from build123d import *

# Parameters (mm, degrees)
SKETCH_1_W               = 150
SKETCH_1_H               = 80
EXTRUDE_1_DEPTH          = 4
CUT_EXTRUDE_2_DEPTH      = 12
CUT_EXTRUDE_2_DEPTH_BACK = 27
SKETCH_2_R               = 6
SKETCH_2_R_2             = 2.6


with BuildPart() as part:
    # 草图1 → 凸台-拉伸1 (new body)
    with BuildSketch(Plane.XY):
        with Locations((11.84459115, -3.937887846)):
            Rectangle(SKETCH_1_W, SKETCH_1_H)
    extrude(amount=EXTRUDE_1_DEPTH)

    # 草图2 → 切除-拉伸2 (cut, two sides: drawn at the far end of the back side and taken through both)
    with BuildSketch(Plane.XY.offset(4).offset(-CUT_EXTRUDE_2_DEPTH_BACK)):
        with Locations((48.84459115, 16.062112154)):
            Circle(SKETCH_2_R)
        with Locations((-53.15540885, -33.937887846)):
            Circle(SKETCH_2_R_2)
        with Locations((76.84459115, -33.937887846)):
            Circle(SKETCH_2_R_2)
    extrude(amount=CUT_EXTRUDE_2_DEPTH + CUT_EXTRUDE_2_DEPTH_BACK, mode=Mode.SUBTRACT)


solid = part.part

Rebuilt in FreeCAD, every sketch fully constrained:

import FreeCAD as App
import Part
import Sketcher
from FreeCAD import Vector
Q = App.Units.Quantity

doc = App.newDocument("Part")
body = doc.addObject("PartDesign::Body", "Body")

# Sketch on XY plane
sketch1 = doc.addObject("Sketcher::SketchObject", "Sketch")
body.addObject(sketch1)
sketch1.AttachmentSupport = (doc.XY_Plane, [""])
sketch1.MapMode = "FlatFace"
sketch1.addGeometry([
    Part.LineSegment(Vector(-63, 36, 0), Vector(-63, -44, 0)),
    Part.LineSegment(Vector(-63, -44, 0), Vector(87, -44, 0)),
    Part.LineSegment(Vector(87, -44, 0), Vector(87, 36, 0)),
    Part.LineSegment(Vector(87, 36, 0), Vector(-63, 36, 0)),
], False)
sketch1.addConstraint([
    Sketcher.Constraint("Coincident", 0, 2, 1, 1),
    Sketcher.Constraint("Coincident", 1, 2, 2, 1),
    Sketcher.Constraint("Coincident", 2, 2, 3, 1),
    Sketcher.Constraint("Coincident", 3, 2, 0, 1),
    Sketcher.Constraint("Vertical", 0),
    Sketcher.Constraint("Horizontal", 1),
    Sketcher.Constraint("Vertical", 2),
    Sketcher.Constraint("Horizontal", 3),
    Sketcher.Constraint("DistanceX", 1, 1, 1, 2, Q("150 mm")),
    Sketcher.Constraint("DistanceY", 0, 2, 0, 1, Q("80 mm")),
    Sketcher.Constraint("DistanceX", 0, 2, -1, 1, Q("63.155409 mm")),
    Sketcher.Constraint("DistanceY", 0, 2, -1, 1, Q("43.937888 mm")),
])
pad1 = doc.addObject("PartDesign::Pad", "Pad")
body.addObject(pad1)
pad1.Profile = sketch1
pad1.Length = 4

# Sketch on XY plane
sketch2 = doc.addObject("Sketcher::SketchObject", "Sketch001")
body.addObject(sketch2)
sketch2.AttachmentSupport = (doc.XY_Plane, [""])
sketch2.MapMode = "FlatFace"
sketch2.AttachmentOffset = App.Placement(Vector(0, 0, 4), App.Rotation())
sketch2.addGeometry([
    Part.Circle(Vector(48.8, 16.1, 0), Vector(0, 0, 1), 6),
    Part.Circle(Vector(-53.2, -33.9, 0), Vector(0, 0, 1), 2.6),
    Part.Circle(Vector(76.8, -33.9, 0), Vector(0, 0, 1), 2.6),
], False)
sketch2.addConstraint([
    Sketcher.Constraint("Equal", 1, 2),
    Sketcher.Constraint("Horizontal", 1, 3, 2, 3),
    Sketcher.Constraint("Diameter", 0, Q("12 mm")),
    Sketcher.Constraint("Diameter", 1, Q("5.2 mm")),
    Sketcher.Constraint("DistanceX", 1, 3, 0, 3, Q("102 mm")),
    Sketcher.Constraint("DistanceY", 1, 3, 0, 3, Q("50 mm")),
    Sketcher.Constraint("DistanceX", 0, 3, 2, 3, Q("28 mm")),
    Sketcher.Constraint("DistanceX", -1, 1, 0, 3, Q("48.844591 mm")),
    Sketcher.Constraint("DistanceY", -1, 1, 0, 3, Q("16.062112 mm")),
])
pocket1 = doc.addObject("PartDesign::Pocket", "Pocket")
body.addObject(pocket1)
pocket1.Profile = sketch2
pocket1.Type = "ThroughAll"
pocket1.Midplane = True

doc.recompute()
